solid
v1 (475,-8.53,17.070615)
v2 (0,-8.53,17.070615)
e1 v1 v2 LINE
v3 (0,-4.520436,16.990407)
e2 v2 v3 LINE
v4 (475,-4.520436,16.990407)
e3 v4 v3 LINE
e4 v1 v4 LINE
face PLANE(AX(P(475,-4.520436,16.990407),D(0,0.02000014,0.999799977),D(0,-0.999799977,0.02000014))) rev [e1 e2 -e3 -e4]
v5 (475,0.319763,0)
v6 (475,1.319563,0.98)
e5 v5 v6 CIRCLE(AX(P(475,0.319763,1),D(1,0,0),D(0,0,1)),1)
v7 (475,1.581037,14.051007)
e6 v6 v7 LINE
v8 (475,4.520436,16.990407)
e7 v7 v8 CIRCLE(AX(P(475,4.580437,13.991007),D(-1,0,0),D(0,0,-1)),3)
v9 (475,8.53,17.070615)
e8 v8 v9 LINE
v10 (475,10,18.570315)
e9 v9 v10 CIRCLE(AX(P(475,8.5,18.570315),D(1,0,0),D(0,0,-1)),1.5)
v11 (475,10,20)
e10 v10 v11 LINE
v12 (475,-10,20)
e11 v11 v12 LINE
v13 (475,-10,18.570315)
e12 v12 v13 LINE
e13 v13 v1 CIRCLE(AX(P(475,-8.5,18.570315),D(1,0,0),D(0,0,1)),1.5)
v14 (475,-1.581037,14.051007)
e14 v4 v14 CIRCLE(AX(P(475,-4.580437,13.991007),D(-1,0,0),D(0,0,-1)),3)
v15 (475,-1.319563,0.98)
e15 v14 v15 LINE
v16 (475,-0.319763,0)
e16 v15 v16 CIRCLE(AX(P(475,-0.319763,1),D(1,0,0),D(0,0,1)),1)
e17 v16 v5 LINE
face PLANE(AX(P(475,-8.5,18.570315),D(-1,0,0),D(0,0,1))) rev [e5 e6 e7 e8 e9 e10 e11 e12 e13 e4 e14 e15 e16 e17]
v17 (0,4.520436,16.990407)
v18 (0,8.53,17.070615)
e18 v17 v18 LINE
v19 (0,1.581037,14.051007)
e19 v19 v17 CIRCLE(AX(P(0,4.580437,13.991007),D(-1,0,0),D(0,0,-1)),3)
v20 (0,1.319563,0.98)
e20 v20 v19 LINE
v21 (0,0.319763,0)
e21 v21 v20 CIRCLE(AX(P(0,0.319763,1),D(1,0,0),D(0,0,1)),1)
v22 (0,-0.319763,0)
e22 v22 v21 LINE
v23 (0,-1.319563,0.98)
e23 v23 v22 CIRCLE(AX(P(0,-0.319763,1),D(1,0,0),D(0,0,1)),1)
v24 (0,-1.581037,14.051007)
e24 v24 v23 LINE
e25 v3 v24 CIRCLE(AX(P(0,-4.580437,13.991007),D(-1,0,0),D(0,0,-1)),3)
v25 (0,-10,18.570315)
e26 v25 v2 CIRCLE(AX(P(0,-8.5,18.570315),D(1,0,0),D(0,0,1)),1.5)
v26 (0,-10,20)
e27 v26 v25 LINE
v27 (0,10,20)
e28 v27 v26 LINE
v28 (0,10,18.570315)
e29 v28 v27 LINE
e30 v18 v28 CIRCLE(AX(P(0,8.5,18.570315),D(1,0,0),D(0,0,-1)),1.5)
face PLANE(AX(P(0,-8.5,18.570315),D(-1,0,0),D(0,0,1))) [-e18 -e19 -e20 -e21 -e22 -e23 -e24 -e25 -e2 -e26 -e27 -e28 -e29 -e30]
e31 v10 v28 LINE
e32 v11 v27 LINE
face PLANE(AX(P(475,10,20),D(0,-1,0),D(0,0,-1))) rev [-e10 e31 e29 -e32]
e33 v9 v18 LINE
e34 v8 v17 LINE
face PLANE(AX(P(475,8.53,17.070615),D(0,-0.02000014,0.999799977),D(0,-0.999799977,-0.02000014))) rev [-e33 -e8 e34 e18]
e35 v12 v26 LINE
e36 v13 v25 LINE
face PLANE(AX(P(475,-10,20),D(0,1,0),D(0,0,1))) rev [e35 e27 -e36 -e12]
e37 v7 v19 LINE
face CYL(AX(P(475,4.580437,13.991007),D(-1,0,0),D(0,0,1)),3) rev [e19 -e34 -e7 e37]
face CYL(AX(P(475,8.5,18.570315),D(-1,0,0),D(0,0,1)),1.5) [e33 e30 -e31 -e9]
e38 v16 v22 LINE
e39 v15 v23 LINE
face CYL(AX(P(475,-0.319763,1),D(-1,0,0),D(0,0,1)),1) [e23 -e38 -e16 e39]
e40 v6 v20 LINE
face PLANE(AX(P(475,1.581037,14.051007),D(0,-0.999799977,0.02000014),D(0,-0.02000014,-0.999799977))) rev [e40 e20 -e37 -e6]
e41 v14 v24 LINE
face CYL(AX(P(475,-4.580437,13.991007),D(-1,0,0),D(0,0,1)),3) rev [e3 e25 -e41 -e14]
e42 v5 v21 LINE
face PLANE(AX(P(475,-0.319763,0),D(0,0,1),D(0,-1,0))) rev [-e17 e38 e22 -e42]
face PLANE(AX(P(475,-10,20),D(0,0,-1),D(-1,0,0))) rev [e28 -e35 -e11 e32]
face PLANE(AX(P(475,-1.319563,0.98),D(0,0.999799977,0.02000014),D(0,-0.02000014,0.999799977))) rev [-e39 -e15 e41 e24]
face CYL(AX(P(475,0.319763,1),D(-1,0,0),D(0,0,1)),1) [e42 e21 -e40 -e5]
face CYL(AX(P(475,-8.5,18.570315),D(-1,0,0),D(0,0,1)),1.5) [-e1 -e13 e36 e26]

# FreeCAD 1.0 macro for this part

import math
import FreeCAD as App
import Part
import Sketcher
from FreeCAD import Vector

doc = App.newDocument("Part")
body = doc.addObject("PartDesign::Body", "Body")

# Sketch on YZ plane
sketch1 = body.newObject("Sketcher::SketchObject", "Sketch")
sketch1.AttachmentSupport = (doc.getObject("YZ_Plane"), [""])
sketch1.MapMode = "FlatFace"
sketch1.addGeometry(Part.LineSegment(Vector(10, 20, 0), Vector(-10, 20, 0)), False)
sketch1.addGeometry(Part.LineSegment(Vector(-10, 20, 0), Vector(-10, 18.570315, 0)), False)
sketch1.addGeometry(Part.ArcOfCircle(Part.Circle(Vector(-8.5, 18.570315, 0), Vector(0, 0, 1), 1.5), math.radians(180), math.radians(268.854)), False)
sketch1.addGeometry(Part.LineSegment(Vector(-8.53, 17.070615, 0), Vector(-4.520436, 16.990407, 0)), False)
sketch1.addGeometry(Part.ArcOfCircle(Part.Circle(Vector(-4.580437, 13.991007, 0), Vector(0, 0, 1), 3), math.radians(1.146), math.radians(88.854)), False)
sketch1.addGeometry(Part.LineSegment(Vector(-1.581037, 14.051007, 0), Vector(-1.319563, 0.98, 0)), False)
sketch1.addGeometry(Part.ArcOfCircle(Part.Circle(Vector(-0.319763, 1, 0), Vector(0, 0, 1), 1), math.radians(-178.854), math.radians(-90)), False)
sketch1.addGeometry(Part.LineSegment(Vector(-0.319763, 0, 0), Vector(0.319763, 0, 0)), False)
sketch1.addGeometry(Part.ArcOfCircle(Part.Circle(Vector(0.319763, 1, 0), Vector(0, 0, 1), 1), math.radians(-90), math.radians(-1.146)), False)
sketch1.addGeometry(Part.LineSegment(Vector(1.319563, 0.98, 0), Vector(1.581037, 14.051007, 0)), False)
sketch1.addGeometry(Part.ArcOfCircle(Part.Circle(Vector(4.580437, 13.991007, 0), Vector(0, 0, 1), 3), math.radians(91.146), math.radians(178.854)), False)
sketch1.addGeometry(Part.LineSegment(Vector(4.520436, 16.990407, 0), Vector(8.53, 17.070615, 0)), False)
sketch1.addGeometry(Part.ArcOfCircle(Part.Circle(Vector(8.5, 18.570315, 0), Vector(0, 0, 1), 1.5), math.radians(-88.854), math.radians(0)), False)
sketch1.addGeometry(Part.LineSegment(Vector(10, 18.570315, 0), Vector(10, 20, 0)), False)
sketch1.addConstraint(Sketcher.Constraint("Coincident", 0, 2, 1, 1))
sketch1.addConstraint(Sketcher.Constraint("Coincident", 1, 2, 2, 1))
sketch1.addConstraint(Sketcher.Constraint("Coincident", 2, 2, 3, 1))
sketch1.addConstraint(Sketcher.Constraint("Coincident", 3, 2, 4, 2))
sketch1.addConstraint(Sketcher.Constraint("Coincident", 4, 1, 5, 1))
sketch1.addConstraint(Sketcher.Constraint("Coincident", 5, 2, 6, 1))
sketch1.addConstraint(Sketcher.Constraint("Coincident", 6, 2, 7, 1))
sketch1.addConstraint(Sketcher.Constraint("Coincident", 7, 2, 8, 1))
sketch1.addConstraint(Sketcher.Constraint("Coincident", 8, 2, 9, 1))
sketch1.addConstraint(Sketcher.Constraint("Coincident", 9, 2, 10, 2))
sketch1.addConstraint(Sketcher.Constraint("Coincident", 10, 1, 11, 1))
sketch1.addConstraint(Sketcher.Constraint("Coincident", 11, 2, 12, 1))
sketch1.addConstraint(Sketcher.Constraint("Coincident", 12, 2, 13, 1))
sketch1.addConstraint(Sketcher.Constraint("Coincident", 13, 2, 0, 1))
sketch1.addConstraint(Sketcher.Constraint("Horizontal", 0))
sketch1.addConstraint(Sketcher.Constraint("Vertical", 1))
sketch1.addConstraint(Sketcher.Constraint("Horizontal", 7))
sketch1.addConstraint(Sketcher.Constraint("Vertical", 13))
sketch1.addConstraint(Sketcher.Constraint("PointOnObject", 6, 2, -1))
sketch1.addConstraint(Sketcher.Constraint("Radius", 4, 3.0))
sketch1.addConstraint(Sketcher.Constraint("Radius", 6, 1.0))
sketch1.addConstraint(Sketcher.Constraint("Radius", 8, 1.0))
sketch1.addConstraint(Sketcher.Constraint("Radius", 10, 3.0))
sketch1.addConstraint(Sketcher.Constraint("Radius", 2, 1.5))
sketch1.addConstraint(Sketcher.Constraint("Radius", 12, 1.5))
sketch1.addConstraint(Sketcher.Constraint("DistanceX", 0, 2, 0, 1, 20.0))
sketch1.addConstraint(Sketcher.Constraint("DistanceX", 0, 2, -1, 1, 10.0))
sketch1.addConstraint(Sketcher.Constraint("DistanceY", -1, 1, 0, 2, 20.0))
sketch1.addConstraint(Sketcher.Constraint("DistanceX", 5, 2, 10, 3, 5.899999))
sketch1.addConstraint(Sketcher.Constraint("DistanceX", 2, 2, -1, 1, 8.53))
sketch1.addConstraint(Sketcher.Constraint("DistanceY", -1, 1, 5, 2, 0.98))
sketch1.addConstraint(Sketcher.Constraint("DistanceY", -1, 1, 8, 2, 0.98))
sketch1.addConstraint(Sketcher.Constraint("DistanceX", -1, 1, 11, 2, 8.53))
sketch1.addConstraint(Sketcher.Constraint("DistanceX", 4, 3, 3, 2, 0.06))
sketch1.addConstraint(Sketcher.Constraint("DistanceY", 4, 3, 4, 1, 0.06))
sketch1.addConstraint(Sketcher.Constraint("DistanceY", 10, 3, 4, 1, 0.06))
sketch1.addConstraint(Sketcher.Constraint("DistanceY", 10, 3, 9, 2, 0.06))
sketch1.addConstraint(Sketcher.Constraint("DistanceX", 10, 1, 10, 3, 0.06))
sketch1.addConstraint(Sketcher.Constraint("DistanceX", 4, 3, 8, 3, 4.9002))
sketch1.addConstraint(Sketcher.Constraint("DistanceY", 2, 2, 1, 2, 1.4997))
sketch1.addConstraint(Sketcher.Constraint("DistanceX", 5, 2, 6, 2, 0.9998))
sketch1.addConstraint(Sketcher.Constraint("DistanceX", 4, 1, 7, 2, 1.9008))
sketch1.addConstraint(Sketcher.Constraint("DistanceY", 11, 2, 12, 2, 1.4997))
sketch1.addConstraint(Sketcher.Constraint("DistanceX", 7, 1, 7, 2, 0.639525))
sketch1.addConstraint(Sketcher.Constraint("DistanceY", 1, 2, 1, 1, 1.429685))
sketch1.addConstraint(Sketcher.Constraint("DistanceY", 13, 1, 13, 2, 1.429685))
sketch1.addConstraint(Sketcher.Constraint("Distance", 3, 4.010366))
sketch1.addConstraint(Sketcher.Constraint("Distance", 5, 13.073622))
pad1 = body.newObject("PartDesign::Pad", "Pad")
pad1.Profile = sketch1
pad1.Length = 475

doc.recompute()
